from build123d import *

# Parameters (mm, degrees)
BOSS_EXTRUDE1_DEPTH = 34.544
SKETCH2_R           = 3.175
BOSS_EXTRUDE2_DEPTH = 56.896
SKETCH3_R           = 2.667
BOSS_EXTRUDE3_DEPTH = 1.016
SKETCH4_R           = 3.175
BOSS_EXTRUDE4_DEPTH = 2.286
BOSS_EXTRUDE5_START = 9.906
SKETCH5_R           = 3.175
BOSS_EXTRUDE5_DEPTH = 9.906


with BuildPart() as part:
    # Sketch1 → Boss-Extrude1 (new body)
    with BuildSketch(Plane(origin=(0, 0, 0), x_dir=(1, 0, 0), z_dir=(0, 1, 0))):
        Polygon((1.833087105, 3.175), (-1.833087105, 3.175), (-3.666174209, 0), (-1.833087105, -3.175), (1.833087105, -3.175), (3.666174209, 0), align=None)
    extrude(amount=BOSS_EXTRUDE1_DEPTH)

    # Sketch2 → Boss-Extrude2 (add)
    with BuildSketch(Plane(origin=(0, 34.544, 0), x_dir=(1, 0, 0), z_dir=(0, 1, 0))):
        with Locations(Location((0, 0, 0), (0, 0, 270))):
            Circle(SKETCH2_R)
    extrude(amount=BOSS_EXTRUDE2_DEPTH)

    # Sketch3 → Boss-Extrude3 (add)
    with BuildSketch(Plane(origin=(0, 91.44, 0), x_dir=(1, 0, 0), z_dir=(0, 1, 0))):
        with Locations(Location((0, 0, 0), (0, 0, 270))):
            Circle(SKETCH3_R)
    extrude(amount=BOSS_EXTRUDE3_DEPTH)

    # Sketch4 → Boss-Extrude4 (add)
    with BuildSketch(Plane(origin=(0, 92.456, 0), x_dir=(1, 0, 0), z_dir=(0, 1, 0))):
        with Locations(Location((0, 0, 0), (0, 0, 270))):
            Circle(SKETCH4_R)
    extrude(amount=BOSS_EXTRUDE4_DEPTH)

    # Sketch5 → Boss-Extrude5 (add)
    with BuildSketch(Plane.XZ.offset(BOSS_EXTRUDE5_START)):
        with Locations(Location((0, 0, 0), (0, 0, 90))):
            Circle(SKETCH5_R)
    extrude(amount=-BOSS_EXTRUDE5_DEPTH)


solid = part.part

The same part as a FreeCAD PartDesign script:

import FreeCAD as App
import Part
import Sketcher
Q = App.Units.Quantity

doc = App.newDocument("Part")
body = doc.addObject("PartDesign::Body", "Body")

# Sketch on XZ plane
sketch1 = doc.addObject("Sketcher::SketchObject", "Sketch")
body.addObject(sketch1)
sketch1.AttachmentSupport = (doc.XZ_Plane, [""])
sketch1.MapMode = "FlatFace"
sketch1.addGeometry(Part.LineSegment(App.Vector(1.8, -3.2, 0), App.Vector(-1.8, -3.2, 0)), False)
sketch1.addGeometry(Part.LineSegment(App.Vector(-1.8, -3.2, 0), App.Vector(-3.7, 0, 0)), False)
sketch1.addGeometry(Part.LineSegment(App.Vector(-3.7, 0, 0), App.Vector(-1.8, 3.2, 0)), False)
sketch1.addGeometry(Part.LineSegment(App.Vector(-1.8, 3.2, 0), App.Vector(1.8, 3.2, 0)), False)
sketch1.addGeometry(Part.LineSegment(App.Vector(1.8, 3.2, 0), App.Vector(3.7, 0, 0)), False)
sketch1.addGeometry(Part.LineSegment(App.Vector(3.7, 0, 0), App.Vector(1.8, -3.2, 0)), False)
sketch1.addConstraint(Sketcher.Constraint("Coincident", 0, 2, 1, 1))
sketch1.addConstraint(Sketcher.Constraint("Coincident", 1, 2, 2, 1))
sketch1.addConstraint(Sketcher.Constraint("Coincident", 2, 2, 3, 1))
sketch1.addConstraint(Sketcher.Constraint("Coincident", 3, 2, 4, 1))
sketch1.addConstraint(Sketcher.Constraint("Coincident", 4, 2, 5, 1))
sketch1.addConstraint(Sketcher.Constraint("Coincident", 5, 2, 0, 1))
sketch1.addConstraint(Sketcher.Constraint("Horizontal", 0))
sketch1.addConstraint(Sketcher.Constraint("Horizontal", 3))
sketch1.addConstraint(Sketcher.Constraint("Symmetric", 0, 2, 3, 2, -1, 1))
sketch1.addConstraint(Sketcher.Constraint("Symmetric", 1, 2, 4, 2, -1, 1))
sketch1.addConstraint(Sketcher.Constraint("PointOnObject", 1, 2, -1))
sketch1.addConstraint(Sketcher.Constraint("Parallel", 2, 5))
sketch1.addConstraint(Sketcher.Constraint("Vertical", 0, 2, 2, 2))
sketch1.addConstraint(Sketcher.Constraint("Angle", 1, Q("120 deg")))
sketch1.addConstraint(Sketcher.Constraint("DistanceY", 0, 2, 2, 2, Q("0.25 in")))
sketch1.addConstraint(Sketcher.Constraint("DistanceX", 0, 2, 0, 1, Q("3.666174 mm")))
pad1 = doc.addObject("PartDesign::Pad", "Pad")
body.addObject(pad1)
pad1.Profile = sketch1
pad1.Length = Q("1.36 in")
pad1.Reversed = True

# Sketch on XZ plane
sketch2 = doc.addObject("Sketcher::SketchObject", "Sketch001")
body.addObject(sketch2)
sketch2.AttachmentSupport = (doc.XZ_Plane, [""])
sketch2.MapMode = "FlatFace"
sketch2.AttachmentOffset = App.Placement(App.Vector(0, 0, -1.36 * 25.4), App.Rotation())
sketch2.addGeometry(Part.Circle(App.Vector(0, 0, 0), App.Vector(0, 0, 1), 3.2), False)
sketch2.addConstraint(Sketcher.Constraint("Coincident", 0, 3, -1, 1))
sketch2.addConstraint(Sketcher.Constraint("Diameter", 0, Q("0.25 in")))
pad2 = doc.addObject("PartDesign::Pad", "Pad001")
body.addObject(pad2)
pad2.Profile = sketch2
pad2.Length = Q("2.24 in")
pad2.Reversed = True

# Sketch on XZ plane
sketch3 = doc.addObject("Sketcher::SketchObject", "Sketch002")
body.addObject(sketch3)
sketch3.AttachmentSupport = (doc.XZ_Plane, [""])
sketch3.MapMode = "FlatFace"
sketch3.AttachmentOffset = App.Placement(App.Vector(0, 0, -3.6 * 25.4), App.Rotation())
sketch3.addGeometry(Part.Circle(App.Vector(0, 0, 0), App.Vector(0, 0, 1), 2.7), False)
sketch3.addConstraint(Sketcher.Constraint("Coincident", 0, 3, -1, 1))
sketch3.addConstraint(Sketcher.Constraint("Diameter", 0, Q("0.21 in")))
pad3 = doc.addObject("PartDesign::Pad", "Pad002")
body.addObject(pad3)
pad3.Profile = sketch3
pad3.Length = Q("0.04 in")
pad3.Reversed = True

# Sketch on XZ plane
sketch4 = doc.addObject("Sketcher::SketchObject", "Sketch003")
body.addObject(sketch4)
sketch4.AttachmentSupport = (doc.XZ_Plane, [""])
sketch4.MapMode = "FlatFace"
sketch4.AttachmentOffset = App.Placement(App.Vector(0, 0, -3.64 * 25.4), App.Rotation())
sketch4.addGeometry(Part.Circle(App.Vector(0, 0, 0), App.Vector(0, 0, 1), 3.2), False)
sketch4.addConstraint(Sketcher.Constraint("Coincident", 0, 3, -1, 1))
sketch4.addConstraint(Sketcher.Constraint("Diameter", 0, Q("0.25 in")))
pad4 = doc.addObject("PartDesign::Pad", "Pad003")
body.addObject(pad4)
pad4.Profile = sketch4
pad4.Length = Q("0.09 in")
pad4.Reversed = True

# Sketch on XZ plane
sketch5 = doc.addObject("Sketcher::SketchObject", "Sketch004")
body.addObject(sketch5)
sketch5.AttachmentSupport = (doc.XZ_Plane, [""])
sketch5.MapMode = "FlatFace"
sketch5.AttachmentOffset = App.Placement(App.Vector(0, 0, 0.39 * 25.4), App.Rotation())
sketch5.addGeometry(Part.Circle(App.Vector(0, 0, 0), App.Vector(0, 0, 1), 3.2), False)
sketch5.addConstraint(Sketcher.Constraint("Coincident", 0, 3, -1, 1))
sketch5.addConstraint(Sketcher.Constraint("Diameter", 0, Q("0.25 in")))
pad5 = doc.addObject("PartDesign::Pad", "Pad004")
body.addObject(pad5)
pad5.Profile = sketch5
pad5.Length = Q("0.39 in")
pad5.Reversed = True

doc.recompute()
